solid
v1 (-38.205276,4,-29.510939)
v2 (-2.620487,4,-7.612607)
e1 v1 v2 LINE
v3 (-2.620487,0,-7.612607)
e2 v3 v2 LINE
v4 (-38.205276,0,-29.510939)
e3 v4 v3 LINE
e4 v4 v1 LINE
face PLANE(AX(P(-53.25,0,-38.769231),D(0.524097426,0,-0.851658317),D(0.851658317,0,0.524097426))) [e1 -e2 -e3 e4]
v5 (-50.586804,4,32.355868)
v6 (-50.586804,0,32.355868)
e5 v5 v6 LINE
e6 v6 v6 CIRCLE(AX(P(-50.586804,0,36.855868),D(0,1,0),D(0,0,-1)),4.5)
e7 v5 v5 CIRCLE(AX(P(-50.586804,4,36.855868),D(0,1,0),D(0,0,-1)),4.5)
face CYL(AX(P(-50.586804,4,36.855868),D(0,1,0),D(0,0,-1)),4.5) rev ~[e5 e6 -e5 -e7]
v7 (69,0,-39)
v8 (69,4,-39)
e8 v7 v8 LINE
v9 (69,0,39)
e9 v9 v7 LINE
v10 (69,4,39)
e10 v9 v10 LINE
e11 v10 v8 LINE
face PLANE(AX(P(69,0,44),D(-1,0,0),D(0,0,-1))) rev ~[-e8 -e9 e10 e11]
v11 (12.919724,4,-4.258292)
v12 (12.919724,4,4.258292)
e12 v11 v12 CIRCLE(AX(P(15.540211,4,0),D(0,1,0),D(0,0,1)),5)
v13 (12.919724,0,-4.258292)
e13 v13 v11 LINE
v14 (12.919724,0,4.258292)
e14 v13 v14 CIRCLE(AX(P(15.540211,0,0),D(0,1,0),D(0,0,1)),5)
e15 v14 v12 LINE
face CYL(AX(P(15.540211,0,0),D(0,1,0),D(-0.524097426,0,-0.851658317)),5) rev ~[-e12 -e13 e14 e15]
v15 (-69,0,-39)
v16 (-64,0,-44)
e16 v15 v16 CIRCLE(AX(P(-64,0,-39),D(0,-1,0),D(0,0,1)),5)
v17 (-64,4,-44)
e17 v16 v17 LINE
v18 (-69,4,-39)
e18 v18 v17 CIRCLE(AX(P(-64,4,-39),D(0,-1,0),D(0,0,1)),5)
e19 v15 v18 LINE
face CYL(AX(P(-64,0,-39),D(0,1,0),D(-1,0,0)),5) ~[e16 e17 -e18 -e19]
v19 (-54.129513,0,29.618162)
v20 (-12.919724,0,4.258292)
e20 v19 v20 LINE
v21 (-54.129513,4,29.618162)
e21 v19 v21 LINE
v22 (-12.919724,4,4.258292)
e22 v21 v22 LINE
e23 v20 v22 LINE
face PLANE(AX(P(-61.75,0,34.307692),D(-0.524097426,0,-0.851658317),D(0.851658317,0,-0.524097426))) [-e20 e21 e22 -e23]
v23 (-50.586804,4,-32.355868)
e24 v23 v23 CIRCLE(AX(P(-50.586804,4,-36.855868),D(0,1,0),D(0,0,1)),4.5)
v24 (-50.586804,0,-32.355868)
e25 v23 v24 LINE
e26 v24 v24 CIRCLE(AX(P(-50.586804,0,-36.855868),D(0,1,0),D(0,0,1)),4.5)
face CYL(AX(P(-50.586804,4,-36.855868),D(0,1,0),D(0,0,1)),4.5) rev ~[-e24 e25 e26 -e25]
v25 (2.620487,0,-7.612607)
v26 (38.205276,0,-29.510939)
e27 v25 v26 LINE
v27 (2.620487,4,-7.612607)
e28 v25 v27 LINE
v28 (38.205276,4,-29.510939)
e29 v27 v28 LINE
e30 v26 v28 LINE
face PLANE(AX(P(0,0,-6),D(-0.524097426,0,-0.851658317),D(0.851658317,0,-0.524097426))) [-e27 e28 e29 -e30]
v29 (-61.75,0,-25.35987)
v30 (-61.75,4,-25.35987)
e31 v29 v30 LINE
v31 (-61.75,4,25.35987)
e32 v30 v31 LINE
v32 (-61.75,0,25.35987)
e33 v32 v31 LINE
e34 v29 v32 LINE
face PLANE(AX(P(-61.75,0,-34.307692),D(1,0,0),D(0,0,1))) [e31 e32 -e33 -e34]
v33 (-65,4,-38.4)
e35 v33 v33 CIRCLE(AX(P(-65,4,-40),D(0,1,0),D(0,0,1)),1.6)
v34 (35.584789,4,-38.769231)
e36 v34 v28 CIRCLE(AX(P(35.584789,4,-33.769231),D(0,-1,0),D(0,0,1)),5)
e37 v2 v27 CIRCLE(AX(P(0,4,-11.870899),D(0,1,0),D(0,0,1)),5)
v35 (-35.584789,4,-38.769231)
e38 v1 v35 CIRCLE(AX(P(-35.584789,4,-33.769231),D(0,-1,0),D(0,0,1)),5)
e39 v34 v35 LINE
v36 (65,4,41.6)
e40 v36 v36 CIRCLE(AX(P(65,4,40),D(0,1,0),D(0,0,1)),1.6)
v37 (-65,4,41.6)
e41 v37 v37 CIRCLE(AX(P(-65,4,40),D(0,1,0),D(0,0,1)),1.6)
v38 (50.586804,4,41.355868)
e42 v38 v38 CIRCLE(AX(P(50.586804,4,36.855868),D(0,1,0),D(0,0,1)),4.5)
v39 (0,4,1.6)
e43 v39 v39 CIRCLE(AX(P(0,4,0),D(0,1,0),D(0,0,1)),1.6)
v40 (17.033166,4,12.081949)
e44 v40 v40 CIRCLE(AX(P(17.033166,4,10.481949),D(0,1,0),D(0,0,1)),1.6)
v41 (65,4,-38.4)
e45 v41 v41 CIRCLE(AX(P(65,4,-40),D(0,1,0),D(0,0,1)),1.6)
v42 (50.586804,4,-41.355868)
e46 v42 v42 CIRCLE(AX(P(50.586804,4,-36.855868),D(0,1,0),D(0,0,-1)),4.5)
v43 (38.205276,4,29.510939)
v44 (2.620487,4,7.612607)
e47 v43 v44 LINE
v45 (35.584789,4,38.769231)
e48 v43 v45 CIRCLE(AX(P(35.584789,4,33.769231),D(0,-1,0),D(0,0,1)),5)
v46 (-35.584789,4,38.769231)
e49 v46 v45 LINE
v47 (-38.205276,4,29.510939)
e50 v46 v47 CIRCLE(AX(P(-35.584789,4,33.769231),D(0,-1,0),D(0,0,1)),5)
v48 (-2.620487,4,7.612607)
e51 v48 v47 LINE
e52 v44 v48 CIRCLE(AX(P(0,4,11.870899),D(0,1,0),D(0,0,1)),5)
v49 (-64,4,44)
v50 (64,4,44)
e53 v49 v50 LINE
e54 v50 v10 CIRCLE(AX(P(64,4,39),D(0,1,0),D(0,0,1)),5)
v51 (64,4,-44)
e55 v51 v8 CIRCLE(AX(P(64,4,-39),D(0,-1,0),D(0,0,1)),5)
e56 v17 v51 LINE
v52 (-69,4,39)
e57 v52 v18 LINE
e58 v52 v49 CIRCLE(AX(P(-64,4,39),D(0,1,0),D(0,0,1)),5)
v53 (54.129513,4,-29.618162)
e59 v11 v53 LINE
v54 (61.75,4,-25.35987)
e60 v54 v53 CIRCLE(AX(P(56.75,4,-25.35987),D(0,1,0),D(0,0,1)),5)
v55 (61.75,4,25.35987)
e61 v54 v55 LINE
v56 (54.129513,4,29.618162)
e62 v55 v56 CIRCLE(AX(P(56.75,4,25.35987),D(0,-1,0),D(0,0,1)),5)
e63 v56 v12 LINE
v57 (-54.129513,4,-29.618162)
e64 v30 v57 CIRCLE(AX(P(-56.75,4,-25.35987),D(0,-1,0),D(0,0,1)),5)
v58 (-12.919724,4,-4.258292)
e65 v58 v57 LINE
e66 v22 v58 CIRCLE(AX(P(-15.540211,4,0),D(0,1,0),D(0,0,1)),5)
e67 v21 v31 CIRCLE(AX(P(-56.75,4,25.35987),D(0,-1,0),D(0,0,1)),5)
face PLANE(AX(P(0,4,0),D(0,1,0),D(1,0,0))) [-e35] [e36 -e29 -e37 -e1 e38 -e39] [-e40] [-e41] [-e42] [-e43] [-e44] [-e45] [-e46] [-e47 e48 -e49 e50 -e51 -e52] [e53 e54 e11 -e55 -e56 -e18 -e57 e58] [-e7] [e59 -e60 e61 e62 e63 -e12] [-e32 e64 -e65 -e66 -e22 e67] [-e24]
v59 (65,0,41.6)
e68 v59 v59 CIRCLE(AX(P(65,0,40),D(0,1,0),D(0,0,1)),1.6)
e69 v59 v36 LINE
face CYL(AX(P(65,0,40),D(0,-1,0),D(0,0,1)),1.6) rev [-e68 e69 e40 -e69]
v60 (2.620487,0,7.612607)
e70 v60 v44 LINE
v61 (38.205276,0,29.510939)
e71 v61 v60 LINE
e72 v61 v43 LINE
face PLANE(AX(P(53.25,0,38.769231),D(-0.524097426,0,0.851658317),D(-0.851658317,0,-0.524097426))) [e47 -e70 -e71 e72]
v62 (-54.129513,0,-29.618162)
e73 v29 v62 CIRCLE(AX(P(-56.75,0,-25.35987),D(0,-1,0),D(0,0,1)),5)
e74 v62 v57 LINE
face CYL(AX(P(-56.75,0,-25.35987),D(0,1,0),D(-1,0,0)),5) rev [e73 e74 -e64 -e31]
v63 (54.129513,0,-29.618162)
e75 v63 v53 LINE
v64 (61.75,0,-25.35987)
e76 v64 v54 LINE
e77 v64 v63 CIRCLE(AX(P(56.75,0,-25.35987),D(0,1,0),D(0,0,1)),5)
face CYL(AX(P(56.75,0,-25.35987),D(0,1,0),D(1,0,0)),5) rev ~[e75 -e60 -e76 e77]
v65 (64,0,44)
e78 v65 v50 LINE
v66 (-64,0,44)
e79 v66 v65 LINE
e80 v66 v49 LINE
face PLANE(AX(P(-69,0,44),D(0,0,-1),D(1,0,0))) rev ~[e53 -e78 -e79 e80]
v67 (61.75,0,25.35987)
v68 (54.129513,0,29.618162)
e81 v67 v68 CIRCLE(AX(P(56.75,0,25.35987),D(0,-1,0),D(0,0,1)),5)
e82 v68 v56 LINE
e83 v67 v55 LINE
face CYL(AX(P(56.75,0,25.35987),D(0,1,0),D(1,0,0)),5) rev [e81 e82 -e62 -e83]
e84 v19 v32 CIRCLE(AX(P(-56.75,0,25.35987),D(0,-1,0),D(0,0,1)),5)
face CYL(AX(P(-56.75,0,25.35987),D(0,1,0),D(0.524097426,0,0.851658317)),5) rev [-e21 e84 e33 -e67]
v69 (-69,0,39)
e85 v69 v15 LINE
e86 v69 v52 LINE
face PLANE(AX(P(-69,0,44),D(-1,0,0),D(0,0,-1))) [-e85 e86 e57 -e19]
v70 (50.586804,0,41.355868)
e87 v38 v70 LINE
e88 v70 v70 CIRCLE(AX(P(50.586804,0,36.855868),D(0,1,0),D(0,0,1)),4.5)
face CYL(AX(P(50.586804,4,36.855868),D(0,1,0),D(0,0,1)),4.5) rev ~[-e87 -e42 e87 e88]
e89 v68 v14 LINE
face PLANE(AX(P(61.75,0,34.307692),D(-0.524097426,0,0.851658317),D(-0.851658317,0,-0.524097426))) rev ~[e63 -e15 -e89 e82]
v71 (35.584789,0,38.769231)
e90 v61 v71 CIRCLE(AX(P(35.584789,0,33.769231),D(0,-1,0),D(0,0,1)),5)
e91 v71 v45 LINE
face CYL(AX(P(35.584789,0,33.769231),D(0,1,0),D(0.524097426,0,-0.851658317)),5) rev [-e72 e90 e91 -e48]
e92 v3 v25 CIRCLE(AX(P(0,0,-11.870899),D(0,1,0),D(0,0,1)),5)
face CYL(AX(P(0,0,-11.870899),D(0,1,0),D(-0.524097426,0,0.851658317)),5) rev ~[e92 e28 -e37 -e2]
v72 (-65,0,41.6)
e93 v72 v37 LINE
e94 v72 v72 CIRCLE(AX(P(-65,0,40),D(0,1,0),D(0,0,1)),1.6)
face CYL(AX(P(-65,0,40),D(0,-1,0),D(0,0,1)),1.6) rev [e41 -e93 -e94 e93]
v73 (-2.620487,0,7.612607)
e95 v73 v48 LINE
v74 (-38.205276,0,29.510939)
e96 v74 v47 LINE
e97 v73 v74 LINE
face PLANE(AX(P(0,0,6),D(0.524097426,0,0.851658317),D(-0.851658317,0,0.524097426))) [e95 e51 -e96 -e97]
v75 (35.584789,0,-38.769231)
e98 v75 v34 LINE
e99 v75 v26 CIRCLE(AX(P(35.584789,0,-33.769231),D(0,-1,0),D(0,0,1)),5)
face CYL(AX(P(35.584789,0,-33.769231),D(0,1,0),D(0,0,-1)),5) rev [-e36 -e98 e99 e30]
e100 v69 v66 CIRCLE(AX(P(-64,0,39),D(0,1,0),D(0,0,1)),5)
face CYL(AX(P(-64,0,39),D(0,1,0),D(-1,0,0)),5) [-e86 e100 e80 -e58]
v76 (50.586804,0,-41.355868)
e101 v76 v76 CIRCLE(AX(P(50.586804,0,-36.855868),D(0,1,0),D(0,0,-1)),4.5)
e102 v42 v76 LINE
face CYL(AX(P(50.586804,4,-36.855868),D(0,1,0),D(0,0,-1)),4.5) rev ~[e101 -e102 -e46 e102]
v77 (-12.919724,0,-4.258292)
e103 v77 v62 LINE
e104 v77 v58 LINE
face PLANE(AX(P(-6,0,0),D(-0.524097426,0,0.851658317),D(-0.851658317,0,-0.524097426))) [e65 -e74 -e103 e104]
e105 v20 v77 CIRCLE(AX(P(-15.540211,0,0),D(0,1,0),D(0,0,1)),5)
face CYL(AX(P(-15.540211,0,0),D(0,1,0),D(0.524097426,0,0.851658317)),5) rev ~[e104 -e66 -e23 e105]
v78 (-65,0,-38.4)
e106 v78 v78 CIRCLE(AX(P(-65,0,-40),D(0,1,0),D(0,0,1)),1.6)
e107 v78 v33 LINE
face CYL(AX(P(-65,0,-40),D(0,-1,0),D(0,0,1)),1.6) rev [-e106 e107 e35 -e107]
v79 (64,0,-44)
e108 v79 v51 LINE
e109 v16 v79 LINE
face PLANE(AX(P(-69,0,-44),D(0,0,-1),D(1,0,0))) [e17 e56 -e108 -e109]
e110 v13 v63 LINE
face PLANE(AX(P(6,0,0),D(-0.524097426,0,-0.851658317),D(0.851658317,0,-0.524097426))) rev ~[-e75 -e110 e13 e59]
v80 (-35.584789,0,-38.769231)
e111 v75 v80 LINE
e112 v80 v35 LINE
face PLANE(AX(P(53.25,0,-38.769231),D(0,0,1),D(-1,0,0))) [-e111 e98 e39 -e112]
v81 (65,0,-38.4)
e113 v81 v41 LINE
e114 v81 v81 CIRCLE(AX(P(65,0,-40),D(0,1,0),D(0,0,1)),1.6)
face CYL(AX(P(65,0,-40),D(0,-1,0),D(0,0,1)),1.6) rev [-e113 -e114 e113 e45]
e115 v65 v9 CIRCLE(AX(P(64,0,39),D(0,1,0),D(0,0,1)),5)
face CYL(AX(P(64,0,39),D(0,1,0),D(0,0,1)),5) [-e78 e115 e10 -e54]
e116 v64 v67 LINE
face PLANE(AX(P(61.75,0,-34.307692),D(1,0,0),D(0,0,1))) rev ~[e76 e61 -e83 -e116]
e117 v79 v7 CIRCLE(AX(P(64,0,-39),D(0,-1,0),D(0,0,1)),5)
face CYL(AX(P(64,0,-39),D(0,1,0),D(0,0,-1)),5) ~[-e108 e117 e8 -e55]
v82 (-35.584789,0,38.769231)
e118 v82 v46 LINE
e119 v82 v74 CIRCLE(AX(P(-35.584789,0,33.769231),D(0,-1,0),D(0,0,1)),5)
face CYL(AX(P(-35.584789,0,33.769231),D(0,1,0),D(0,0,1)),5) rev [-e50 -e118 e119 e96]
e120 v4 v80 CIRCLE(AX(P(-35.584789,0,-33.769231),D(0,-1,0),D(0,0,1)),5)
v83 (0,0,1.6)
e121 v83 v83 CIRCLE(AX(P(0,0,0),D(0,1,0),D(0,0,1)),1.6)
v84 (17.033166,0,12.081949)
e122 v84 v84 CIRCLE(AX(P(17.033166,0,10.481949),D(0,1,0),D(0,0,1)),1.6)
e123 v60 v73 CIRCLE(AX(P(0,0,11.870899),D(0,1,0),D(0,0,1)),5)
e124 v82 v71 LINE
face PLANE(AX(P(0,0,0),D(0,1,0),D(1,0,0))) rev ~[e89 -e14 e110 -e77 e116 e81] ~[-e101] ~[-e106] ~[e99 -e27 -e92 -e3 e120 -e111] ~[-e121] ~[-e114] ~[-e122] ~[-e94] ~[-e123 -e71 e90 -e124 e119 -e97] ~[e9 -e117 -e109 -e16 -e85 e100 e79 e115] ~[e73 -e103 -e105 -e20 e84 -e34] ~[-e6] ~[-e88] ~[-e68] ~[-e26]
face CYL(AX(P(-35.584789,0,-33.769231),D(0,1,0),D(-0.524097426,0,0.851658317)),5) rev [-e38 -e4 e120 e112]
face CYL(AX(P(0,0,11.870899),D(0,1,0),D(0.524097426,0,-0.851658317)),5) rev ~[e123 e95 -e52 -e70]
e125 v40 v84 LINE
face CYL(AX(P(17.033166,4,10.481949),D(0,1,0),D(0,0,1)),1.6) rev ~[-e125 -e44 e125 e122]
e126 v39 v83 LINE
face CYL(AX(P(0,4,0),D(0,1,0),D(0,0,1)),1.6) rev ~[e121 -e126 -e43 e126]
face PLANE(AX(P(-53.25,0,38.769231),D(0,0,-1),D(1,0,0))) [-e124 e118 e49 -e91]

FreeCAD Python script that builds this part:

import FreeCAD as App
import Part
import Sketcher
Q = App.Units.Quantity


def edges_at(feature, points):
    """Names of the edges that pass closest to the given points."""
    edges = feature.Shape.Edges
    near = lambda p: min(range(len(edges)), key=lambda i: edges[i].distToShape(Part.Vertex(*p))[0])
    return sorted({f"Edge{near(p) + 1}" for p in points})


def add_polygon(sketch, points):
    """Adds a closed chain of lines whose ends are joined by coincident constraints."""
    first, n = sketch.GeometryCount, len(points)
    for a, b in zip(points, points[1:] + points[:1]):
        sketch.addGeometry(Part.LineSegment(App.Vector(*a, 0), App.Vector(*b, 0)), False)
    for i in range(n):
        sketch.addConstraint(Sketcher.Constraint("Coincident", first + i, 2, first + (i + 1) % n, 1))

doc = App.newDocument("Part")
body = doc.addObject("PartDesign::Body", "Body")

# Sketch on XZ plane
sketch1 = doc.addObject("Sketcher::SketchObject", "Sketch")
body.addObject(sketch1)
sketch1.AttachmentSupport = (doc.XZ_Plane, [""])
sketch1.MapMode = "FlatFace"
add_polygon(sketch1, [(-69, -44), (-69, 44), (69, 44), (69, -44)])  # lines 0-3
sketch1.addGeometry(Part.Circle(App.Vector(-65, 40, 0), App.Vector(0, 0, 1), 1.6), False)  # 4
add_polygon(sketch1, [(0, 6), (53.2, 38.8), (-53.2, 38.8)])  # lines 5-7
sketch1.addGeometry(Part.Circle(App.Vector(65, 40, 0), App.Vector(0, 0, 1), 1.6), False)  # 8
add_polygon(sketch1, [(-6, 0), (-61.8, 34.3), (-61.8, -34.3)])  # lines 9-11
sketch1.addGeometry(Part.Circle(App.Vector(-65, -40, 0), App.Vector(0, 0, 1), 1.6), False)  # 12
add_polygon(sketch1, [(61.8, -34.3), (61.8, 34.3), (6, 0)])  # lines 13-15
add_polygon(sketch1, [(0, -6), (-53.2, -38.8), (53.2, -38.8)])  # lines 16-18
sketch1.addGeometry(Part.Circle(App.Vector(65, -40, 0), App.Vector(0, 0, 1), 1.6), False)  # 19
sketch1.addConstraint([
    Sketcher.Constraint("Vertical", 0),
    Sketcher.Constraint("Horizontal", 1),
    Sketcher.Constraint("Vertical", 2),
    Sketcher.Constraint("Horizontal", 3),
    Sketcher.Constraint("Horizontal", 6),
    Sketcher.Constraint("Vertical", 10),
    Sketcher.Constraint("Vertical", 13),
    Sketcher.Constraint("Horizontal", 17),
    Sketcher.Constraint("Equal", 4, 8),
    Sketcher.Constraint("Equal", 8, 12),
    Sketcher.Constraint("Equal", 12, 19),
    Sketcher.Constraint("Symmetric", 8, 3, 12, 3, -1, 1),
    Sketcher.Constraint("Symmetric", 4, 3, 19, 3, -1, 1),
    Sketcher.Constraint("Symmetric", 0, 2, 2, 2, -1, 1),
    Sketcher.Constraint("Symmetric", 10, 2, 13, 2, -1, 1),
    Sketcher.Constraint("Symmetric", 11, 2, 14, 2, -1, 1),
    Sketcher.Constraint("Symmetric", 5, 2, 16, 2, -1, 1),
    Sketcher.Constraint("Symmetric", 7, 2, 18, 2, -1, 1),
    Sketcher.Constraint("Symmetric", 4, 3, 8, 3, -2),
    Sketcher.Constraint("PointOnObject", 7, 2, -2),
    Sketcher.Constraint("PointOnObject", 11, 2, -1),
    Sketcher.Constraint("Parallel", 7, 9),
    Sketcher.Constraint("Parallel", 5, 11),
    Sketcher.Constraint("Parallel", 9, 15),
    Sketcher.Constraint("Parallel", 15, 18),
    Sketcher.Constraint("Horizontal", 9, 2, 13, 2),
    Sketcher.Constraint("Diameter", 4, Q("3.2 mm")),
    Sketcher.Constraint("DistanceX", 1, 1, 1, 2, Q("138 mm")),
    Sketcher.Constraint("DistanceY", 0, 1, 0, 2, Q("88 mm")),
    Sketcher.Constraint("DistanceX", 6, 2, 6, 1, Q("106.5 mm")),
    Sketcher.Constraint("DistanceX", 4, 3, -1, 1, Q("65 mm")),
    Sketcher.Constraint("DistanceY", -1, 1, 4, 3, Q("40 mm")),
    Sketcher.Constraint("DistanceY", -1, 1, 7, 2, Q("6 mm")),
    Sketcher.Constraint("DistanceX", 11, 2, -1, 1, Q("6 mm")),
    Sketcher.Constraint("DistanceX", 9, 2, 6, 2, Q("8.5 mm")),
    Sketcher.Constraint("DistanceY", 10, 2, 10, 1, Q("68.615385 mm")),
])
pad1 = doc.addObject("PartDesign::Pad", "Pad")
body.addObject(pad1)
pad1.Profile = sketch1
pad1.Length = 4
pad1.Reversed = True
doc.recompute()

fillet = doc.addObject("PartDesign::Fillet", "Fillet")
body.addObject(fillet)
fillet.Base = (pad1, edges_at(pad1, [
    (0, 2, -6),
    (53.25, 2, -38.769),
    (-53.25, 2, -38.769),
    (0, 2, 6),
    (-53.25, 2, 38.769),
    (53.25, 2, 38.769),
    (-6, 2, 0),
    (-61.75, 2, -34.308),
    (-61.75, 2, 34.308),
    (61.75, 2, -34.308),
    (6, 2, 0),
    (61.75, 2, 34.308),
]))
fillet.Radius = 5
doc.recompute()

fillet2 = doc.addObject("PartDesign::Fillet", "Fillet001")
body.addObject(fillet2)
fillet2.Base = (fillet, edges_at(fillet, [
    (69, 2, 44),
    (-69, 2, 44),
    (-69, 2, -44),
    (69, 2, -44),
]))
fillet2.Radius = 5

# Sketch on XZ plane
sketch2 = doc.addObject("Sketcher::SketchObject", "Sketch001")
body.addObject(sketch2)
sketch2.AttachmentSupport = (doc.XZ_Plane, [""])
sketch2.MapMode = "FlatFace"
sketch2.AttachmentOffset = App.Placement(App.Vector(0, 0, -4), App.Rotation())
sketch2.addGeometry([
    Part.Circle(App.Vector(50.6, 36.9, 0), App.Vector(0, 0, 1), 4.5),
    Part.Circle(App.Vector(-50.6, 36.9, 0), App.Vector(0, 0, 1), 4.5),
    Part.Circle(App.Vector(-50.6, -36.9, 0), App.Vector(0, 0, 1), 4.5),
    Part.Circle(App.Vector(50.6, -36.9, 0), App.Vector(0, 0, 1), 4.5),
], False)
sketch2.addConstraint([
    Sketcher.Constraint("Equal", 0, 1),
    Sketcher.Constraint("Equal", 1, 2),
    Sketcher.Constraint("Equal", 2, 3),
    Sketcher.Constraint("Symmetric", 0, 3, 2, 3, -1, 1),
    Sketcher.Constraint("Symmetric", 1, 3, 3, 3, -1, 1),
    Sketcher.Constraint("Symmetric", 0, 3, 1, 3, -2),
    Sketcher.Constraint("Diameter", 0, Q("9 mm")),
    Sketcher.Constraint("DistanceY", -1, 1, 0, 3, Q("36.855868 mm")),
    Sketcher.Constraint("DistanceX", 1, 3, 0, 3, Q("101.173608 mm")),
])
pocket1 = doc.addObject("PartDesign::Pocket", "Pocket")
body.addObject(pocket1)
pocket1.Profile = sketch2
pocket1.Type = "ThroughAll"
pocket1.Reversed = True

# Sketch on XZ plane
sketch3 = doc.addObject("Sketcher::SketchObject", "Sketch002")
body.addObject(sketch3)
sketch3.AttachmentSupport = (doc.XZ_Plane, [""])
sketch3.MapMode = "FlatFace"
sketch3.AttachmentOffset = App.Placement(App.Vector(0, 0, -4), App.Rotation())
sketch3.addGeometry([
    Part.Circle(App.Vector(17, 10.5, 0), App.Vector(0, 0, 1), 1.6),
    Part.Circle(App.Vector(0, 0, 0), App.Vector(0, 0, 1), 1.6),
], False)
sketch3.addConstraint([
    Sketcher.Constraint("Coincident", 1, 3, -1, 1),
    Sketcher.Constraint("Equal", 0, 1),
    Sketcher.Constraint("Diameter", 0, Q("3.2 mm")),
    Sketcher.Constraint("DistanceY", -1, 1, 0, 3, Q("10.481949 mm")),
    Sketcher.Constraint("DistanceX", -1, 1, 0, 3, Q("17.033166 mm")),
])
pocket2 = doc.addObject("PartDesign::Pocket", "Pocket001")
body.addObject(pocket2)
pocket2.Profile = sketch3
pocket2.Type = "ThroughAll"
pocket2.Reversed = True

doc.recompute()
